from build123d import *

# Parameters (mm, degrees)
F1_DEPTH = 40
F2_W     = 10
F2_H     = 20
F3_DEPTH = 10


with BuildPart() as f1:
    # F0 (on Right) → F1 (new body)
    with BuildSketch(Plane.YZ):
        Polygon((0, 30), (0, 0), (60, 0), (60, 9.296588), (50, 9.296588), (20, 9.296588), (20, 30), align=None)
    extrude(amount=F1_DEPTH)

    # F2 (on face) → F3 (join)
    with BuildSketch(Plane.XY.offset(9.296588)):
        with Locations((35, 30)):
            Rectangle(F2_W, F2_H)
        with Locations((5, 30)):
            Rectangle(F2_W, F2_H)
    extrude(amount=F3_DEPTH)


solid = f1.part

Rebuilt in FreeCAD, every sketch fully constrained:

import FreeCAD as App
import Part
import Sketcher
from FreeCAD import Vector
Q = App.Units.Quantity

doc = App.newDocument("Part")
body = doc.addObject("PartDesign::Body", "Body")

sketch1 = body.newObject("Sketcher::SketchObject", "Sketch")
sketch1.AttachmentSupport = (doc.getObject("YZ_Plane"), [""])
sketch1.MapMode = "FlatFace"
sketch1.addGeometry([
    Part.LineSegment(Vector(0, 30, 0), Vector(0, 0, 0)),
    Part.LineSegment(Vector(0, 0, 0), Vector(60, 0, 0)),
    Part.LineSegment(Vector(60, 0, 0), Vector(60, 9, 0)),
    Part.LineSegment(Vector(60, 9, 0), Vector(20, 9, 0)),
    Part.LineSegment(Vector(20, 9, 0), Vector(20, 30, 0)),
    Part.LineSegment(Vector(20, 30, 0), Vector(0, 30, 0)),
], False)
sketch1.addConstraint([
    Sketcher.Constraint("Coincident", 0, 2, 1, 1),
    Sketcher.Constraint("Coincident", 1, 2, 2, 1),
    Sketcher.Constraint("Coincident", 2, 2, 3, 1),
    Sketcher.Constraint("Coincident", 3, 2, 4, 1),
    Sketcher.Constraint("Coincident", 4, 2, 5, 1),
    Sketcher.Constraint("Coincident", 5, 2, 0, 1),
    Sketcher.Constraint("Vertical", 0),
    Sketcher.Constraint("Horizontal", 1),
    Sketcher.Constraint("Vertical", 2),
    Sketcher.Constraint("Horizontal", 3),
    Sketcher.Constraint("Vertical", 4),
    Sketcher.Constraint("Horizontal", 5),
    Sketcher.Constraint("Coincident", 0, 2, -1, 1),
    Sketcher.Constraint("DistanceX", 1, 1, 1, 2, Q("60 mm")),
    Sketcher.Constraint("DistanceX", 3, 2, 3, 1, Q("40 mm")),
    Sketcher.Constraint("DistanceY", 0, 2, 0, 1, Q("30 mm")),
    Sketcher.Constraint("DistanceY", 4, 1, 4, 2, Q("20.703412 mm")),
])
pad1 = body.newObject("PartDesign::Pad", "Pad")
pad1.Profile = sketch1
pad1.Length = 40

sketch2 = body.newObject("Sketcher::SketchObject", "Sketch001")
sketch2.AttachmentSupport = (doc.getObject("XY_Plane"), [""])
sketch2.MapMode = "FlatFace"
sketch2.AttachmentOffset = App.Placement(Vector(0, 0, 9.296588), App.Rotation())
sketch2.addGeometry([
    Part.LineSegment(Vector(30, 40, 0), Vector(30, 20, 0)),
    Part.LineSegment(Vector(30, 20, 0), Vector(40, 20, 0)),
    Part.LineSegment(Vector(40, 20, 0), Vector(40, 40, 0)),
    Part.LineSegment(Vector(40, 40, 0), Vector(30, 40, 0)),
    Part.LineSegment(Vector(0, 40, 0), Vector(0, 20, 0)),
    Part.LineSegment(Vector(0, 20, 0), Vector(10, 20, 0)),
    Part.LineSegment(Vector(10, 20, 0), Vector(10, 40, 0)),
    Part.LineSegment(Vector(10, 40, 0), Vector(0, 40, 0)),
], False)
sketch2.addConstraint([
    Sketcher.Constraint("Coincident", 0, 2, 1, 1),
    Sketcher.Constraint("Coincident", 1, 2, 2, 1),
    Sketcher.Constraint("Coincident", 2, 2, 3, 1),
    Sketcher.Constraint("Coincident", 3, 2, 0, 1),
    Sketcher.Constraint("Coincident", 4, 2, 5, 1),
    Sketcher.Constraint("Coincident", 5, 2, 6, 1),
    Sketcher.Constraint("Coincident", 6, 2, 7, 1),
    Sketcher.Constraint("Coincident", 7, 2, 4, 1),
    Sketcher.Constraint("Vertical", 0),
    Sketcher.Constraint("Horizontal", 1),
    Sketcher.Constraint("Vertical", 2),
    Sketcher.Constraint("Horizontal", 3),
    Sketcher.Constraint("Vertical", 4),
    Sketcher.Constraint("Horizontal", 5),
    Sketcher.Constraint("Vertical", 6),
    Sketcher.Constraint("Horizontal", 7),
    Sketcher.Constraint("PointOnObject", 4, 2, -2),
    Sketcher.Constraint("Horizontal", 1, 2, 4, 2),
    Sketcher.Constraint("Horizontal", 3, 2, 6, 2),
    Sketcher.Constraint("Equal", 3, 5),
    Sketcher.Constraint("DistanceX", 1, 1, 1, 2, Q("10 mm")),
    Sketcher.Constraint("DistanceY", 0, 2, 0, 1, Q("20 mm")),
    Sketcher.Constraint("DistanceX", -1, 1, 0, 2, Q("30 mm")),
    Sketcher.Constraint("DistanceY", -1, 1, 0, 2, Q("20 mm")),
])
pad2 = body.newObject("PartDesign::Pad", "Pad001")
pad2.Profile = sketch2
pad2.Length = 10

doc.recompute()
